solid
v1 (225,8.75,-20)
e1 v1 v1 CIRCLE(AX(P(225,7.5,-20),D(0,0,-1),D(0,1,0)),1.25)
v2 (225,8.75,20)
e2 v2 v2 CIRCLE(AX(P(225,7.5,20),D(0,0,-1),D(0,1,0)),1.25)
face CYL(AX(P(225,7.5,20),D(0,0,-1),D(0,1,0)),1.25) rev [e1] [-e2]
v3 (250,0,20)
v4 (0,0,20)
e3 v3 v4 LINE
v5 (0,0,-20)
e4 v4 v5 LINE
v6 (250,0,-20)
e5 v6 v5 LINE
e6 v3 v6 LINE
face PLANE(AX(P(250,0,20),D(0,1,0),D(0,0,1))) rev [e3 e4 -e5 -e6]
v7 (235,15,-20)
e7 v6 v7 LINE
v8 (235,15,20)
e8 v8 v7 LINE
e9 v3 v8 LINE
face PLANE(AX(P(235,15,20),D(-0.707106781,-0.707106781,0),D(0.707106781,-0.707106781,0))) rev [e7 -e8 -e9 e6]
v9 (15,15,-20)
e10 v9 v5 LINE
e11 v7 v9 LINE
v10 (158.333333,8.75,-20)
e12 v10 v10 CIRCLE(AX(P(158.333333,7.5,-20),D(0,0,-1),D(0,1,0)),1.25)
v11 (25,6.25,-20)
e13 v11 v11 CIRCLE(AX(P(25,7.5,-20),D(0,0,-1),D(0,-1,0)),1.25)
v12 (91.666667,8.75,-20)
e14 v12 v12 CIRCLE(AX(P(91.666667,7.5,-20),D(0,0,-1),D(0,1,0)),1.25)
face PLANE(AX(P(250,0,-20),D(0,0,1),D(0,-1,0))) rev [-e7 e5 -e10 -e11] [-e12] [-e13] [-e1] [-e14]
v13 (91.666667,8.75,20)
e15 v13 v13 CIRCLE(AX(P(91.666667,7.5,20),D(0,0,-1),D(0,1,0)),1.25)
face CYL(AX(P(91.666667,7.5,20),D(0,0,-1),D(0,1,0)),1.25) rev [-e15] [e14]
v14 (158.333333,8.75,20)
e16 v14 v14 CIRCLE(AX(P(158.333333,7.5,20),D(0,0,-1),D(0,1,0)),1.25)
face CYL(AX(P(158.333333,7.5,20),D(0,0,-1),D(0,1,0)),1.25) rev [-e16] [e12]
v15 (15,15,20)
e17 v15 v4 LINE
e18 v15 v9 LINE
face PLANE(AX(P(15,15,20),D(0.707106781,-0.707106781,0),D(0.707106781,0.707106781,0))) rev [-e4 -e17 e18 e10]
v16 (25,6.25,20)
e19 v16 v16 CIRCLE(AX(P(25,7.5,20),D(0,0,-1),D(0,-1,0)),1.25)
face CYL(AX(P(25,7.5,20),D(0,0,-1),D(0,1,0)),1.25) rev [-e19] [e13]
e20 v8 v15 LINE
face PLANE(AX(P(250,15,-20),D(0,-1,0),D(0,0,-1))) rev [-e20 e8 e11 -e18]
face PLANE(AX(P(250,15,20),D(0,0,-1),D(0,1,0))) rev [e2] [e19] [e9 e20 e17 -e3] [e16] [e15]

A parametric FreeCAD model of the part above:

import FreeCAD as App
import Part
import Sketcher

V = App.Vector
Q = App.Units.Quantity


def add_polygon(sketch, points):
    """Adds a closed chain of lines whose ends are joined by coincident constraints."""
    first, n = sketch.GeometryCount, len(points)
    for a, b in zip(points, points[1:] + points[:1]):
        sketch.addGeometry(Part.LineSegment(App.Vector(*a, 0), App.Vector(*b, 0)), False)
    for i in range(n):
        sketch.addConstraint(Sketcher.Constraint("Coincident", first + i, 2, first + (i + 1) % n, 1))

doc = App.newDocument("Part")
body = doc.addObject("PartDesign::Body", "Body")

# Sketch on YZ plane
sketch1 = body.newObject("Sketcher::SketchObject", "Sketch")
sketch1.AttachmentSupport = (doc.getObject("YZ_Plane"), [""])
sketch1.MapMode = "FlatFace"
add_polygon(sketch1, [(0, 20), (0, -20), (15, -20), (15, 20)])  # lines 0-3
sketch1.addConstraint(Sketcher.Constraint("Vertical", 0))
sketch1.addConstraint(Sketcher.Constraint("Horizontal", 1))
sketch1.addConstraint(Sketcher.Constraint("Vertical", 2))
sketch1.addConstraint(Sketcher.Constraint("Horizontal", 3))
sketch1.addConstraint(Sketcher.Constraint("Symmetric", 0, 2, 3, 2, -1, 1))
sketch1.addConstraint(Sketcher.Constraint("DistanceX", 1, 1, 1, 2, Q("15 mm")))
sketch1.addConstraint(Sketcher.Constraint("DistanceY", 0, 2, 0, 1, Q("40 mm")))
pad1 = body.newObject("PartDesign::Pad", "Pad")
pad1.Profile = sketch1
pad1.Length = 250

# Sketch on XY plane
sketch2 = body.newObject("Sketcher::SketchObject", "Sketch001")
sketch2.AttachmentSupport = (doc.getObject("XY_Plane"), [""])
sketch2.MapMode = "FlatFace"
sketch2.AttachmentOffset = App.Placement(V(0, 0, -20), App.Rotation())
sketch2.addGeometry(Part.Circle(V(225, 7.5, 0), V(0, 0, 1), 1.2), False)  # 0
sketch2.addGeometry(Part.Circle(V(25, 7.5, 0), V(0, 0, 1), 1.2), False)  # 1
sketch2.addGeometry(Part.Circle(V(158.3, 7.5, 0), V(0, 0, 1), 1.2), False)  # 2
sketch2.addGeometry(Part.Circle(V(91.7, 7.5, 0), V(0, 0, 1), 1.2), False)  # 3
add_polygon(sketch2, [(0, 15), (15, 15), (0, 0)])  # lines 4-6
add_polygon(sketch2, [(235, 15), (250, 15), (250, 0)])  # lines 7-9
sketch2.addConstraint(Sketcher.Constraint("Horizontal", 4))
sketch2.addConstraint(Sketcher.Constraint("Vertical", 6))
sketch2.addConstraint(Sketcher.Constraint("Horizontal", 7))
sketch2.addConstraint(Sketcher.Constraint("Vertical", 8))
sketch2.addConstraint(Sketcher.Constraint("Coincident", 5, 2, -1, 1))
sketch2.addConstraint(Sketcher.Constraint("Equal", 0, 1))
sketch2.addConstraint(Sketcher.Constraint("Equal", 1, 2))
sketch2.addConstraint(Sketcher.Constraint("Equal", 2, 3))
sketch2.addConstraint(Sketcher.Constraint("PointOnObject", 8, 2, -1))
sketch2.addConstraint(Sketcher.Constraint("Perpendicular", 5, 9))
sketch2.addConstraint(Sketcher.Constraint("Horizontal", 0, 3, 1, 3))
sketch2.addConstraint(Sketcher.Constraint("Horizontal", 1, 3, 2, 3))
sketch2.addConstraint(Sketcher.Constraint("Horizontal", 2, 3, 3, 3))
sketch2.addConstraint(Sketcher.Constraint("Horizontal", 6, 2, 7, 2))
sketch2.addConstraint(Sketcher.Constraint("Equal", 4, 7))
sketch2.addConstraint(Sketcher.Constraint("Diameter", 0, Q("2.5 mm")))
sketch2.addConstraint(Sketcher.Constraint("DistanceX", 4, 1, 4, 2, Q("15 mm")))
sketch2.addConstraint(Sketcher.Constraint("DistanceX", -1, 1, 0, 3, Q("225 mm")))
sketch2.addConstraint(Sketcher.Constraint("DistanceX", -1, 1, 1, 3, Q("25 mm")))
sketch2.addConstraint(Sketcher.Constraint("DistanceX", -1, 1, 7, 2, Q("250 mm")))
sketch2.addConstraint(Sketcher.Constraint("DistanceY", -1, 1, 0, 3, Q("7.5 mm")))
sketch2.addConstraint(Sketcher.Constraint("DistanceX", -1, 1, 2, 3, Q("158.333333 mm")))
sketch2.addConstraint(Sketcher.Constraint("DistanceX", -1, 1, 3, 3, Q("91.666667 mm")))
pocket1 = body.newObject("PartDesign::Pocket", "Pocket")
pocket1.Profile = sketch2
pocket1.Type = "ThroughAll"
pocket1.Reversed = True

doc.recompute()
